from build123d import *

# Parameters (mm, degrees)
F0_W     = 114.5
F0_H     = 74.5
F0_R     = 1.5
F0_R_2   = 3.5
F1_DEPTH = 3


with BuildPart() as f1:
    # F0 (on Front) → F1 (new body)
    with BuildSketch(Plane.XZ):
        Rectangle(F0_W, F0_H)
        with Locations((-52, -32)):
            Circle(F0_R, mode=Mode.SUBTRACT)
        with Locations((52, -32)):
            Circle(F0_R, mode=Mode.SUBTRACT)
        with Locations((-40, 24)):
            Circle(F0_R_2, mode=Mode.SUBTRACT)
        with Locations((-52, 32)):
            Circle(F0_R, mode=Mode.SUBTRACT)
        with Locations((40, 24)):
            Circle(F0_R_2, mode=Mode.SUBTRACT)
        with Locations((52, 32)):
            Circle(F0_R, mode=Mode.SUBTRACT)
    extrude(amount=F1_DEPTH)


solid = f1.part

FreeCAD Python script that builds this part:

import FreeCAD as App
import Part
import Sketcher
from FreeCAD import Vector

doc = App.newDocument("Part")
body = doc.addObject("PartDesign::Body", "Body")

sketch1 = body.newObject("Sketcher::SketchObject", "Sketch")
sketch1.AttachmentSupport = (doc.getObject("XZ_Plane"), [""])
sketch1.MapMode = "FlatFace"
sketch1.addGeometry(Part.LineSegment(Vector(-57.2, 37.2, 0), Vector(-57.2, -37.2, 0)), False)
sketch1.addGeometry(Part.LineSegment(Vector(-57.2, -37.2, 0), Vector(57.2, -37.2, 0)), False)
sketch1.addGeometry(Part.LineSegment(Vector(57.2, -37.2, 0), Vector(57.2, 37.2, 0)), False)
sketch1.addGeometry(Part.LineSegment(Vector(57.2, 37.2, 0), Vector(-57.2, 37.2, 0)), False)
sketch1.addGeometry(Part.Circle(Vector(-52, -32, 0), Vector(0, 0, 1), 1.5), False)
sketch1.addGeometry(Part.Circle(Vector(52, -32, 0), Vector(0, 0, 1), 1.5), False)
sketch1.addGeometry(Part.Circle(Vector(-40, 24, 0), Vector(0, 0, 1), 3.5), False)
sketch1.addGeometry(Part.Circle(Vector(-52, 32, 0), Vector(0, 0, 1), 1.5), False)
sketch1.addGeometry(Part.Circle(Vector(40, 24, 0), Vector(0, 0, 1), 3.5), False)
sketch1.addGeometry(Part.Circle(Vector(52, 32, 0), Vector(0, 0, 1), 1.5), False)
sketch1.addConstraint(Sketcher.Constraint("Coincident", 0, 2, 1, 1))
sketch1.addConstraint(Sketcher.Constraint("Coincident", 1, 2, 2, 1))
sketch1.addConstraint(Sketcher.Constraint("Coincident", 2, 2, 3, 1))
sketch1.addConstraint(Sketcher.Constraint("Coincident", 3, 2, 0, 1))
sketch1.addConstraint(Sketcher.Constraint("Vertical", 0))
sketch1.addConstraint(Sketcher.Constraint("Horizontal", 1))
sketch1.addConstraint(Sketcher.Constraint("Vertical", 2))
sketch1.addConstraint(Sketcher.Constraint("Horizontal", 3))
sketch1.addConstraint(Sketcher.Constraint("Equal", 4, 5))
sketch1.addConstraint(Sketcher.Constraint("Equal", 5, 7))
sketch1.addConstraint(Sketcher.Constraint("Equal", 6, 8))
sketch1.addConstraint(Sketcher.Constraint("Equal", 7, 9))
sketch1.addConstraint(Sketcher.Constraint("Symmetric", 5, 3, 7, 3, -1, 1))
sketch1.addConstraint(Sketcher.Constraint("Symmetric", 4, 3, 9, 3, -1, 1))
sketch1.addConstraint(Sketcher.Constraint("Symmetric", 0, 2, 2, 2, -1, 1))
sketch1.addConstraint(Sketcher.Constraint("Symmetric", 4, 3, 5, 3, -2))
sketch1.addConstraint(Sketcher.Constraint("Symmetric", 6, 3, 8, 3, -2))
sketch1.addConstraint(Sketcher.Constraint("Diameter", 4, 3.0))
sketch1.addConstraint(Sketcher.Constraint("Diameter", 6, 7.0))
sketch1.addConstraint(Sketcher.Constraint("DistanceX", 1, 1, 1, 2, 114.5))
sketch1.addConstraint(Sketcher.Constraint("DistanceY", 0, 2, 0, 1, 74.5))
sketch1.addConstraint(Sketcher.Constraint("DistanceX", 4, 3, -1, 1, 52.0))
sketch1.addConstraint(Sketcher.Constraint("DistanceY", 4, 3, -1, 1, 32.0))
sketch1.addConstraint(Sketcher.Constraint("DistanceX", 6, 3, -1, 1, 40.0))
sketch1.addConstraint(Sketcher.Constraint("DistanceY", -1, 1, 6, 3, 24.0))
pad1 = body.newObject("PartDesign::Pad", "Pad")
pad1.Profile = sketch1
pad1.Length = 3

doc.recompute()
